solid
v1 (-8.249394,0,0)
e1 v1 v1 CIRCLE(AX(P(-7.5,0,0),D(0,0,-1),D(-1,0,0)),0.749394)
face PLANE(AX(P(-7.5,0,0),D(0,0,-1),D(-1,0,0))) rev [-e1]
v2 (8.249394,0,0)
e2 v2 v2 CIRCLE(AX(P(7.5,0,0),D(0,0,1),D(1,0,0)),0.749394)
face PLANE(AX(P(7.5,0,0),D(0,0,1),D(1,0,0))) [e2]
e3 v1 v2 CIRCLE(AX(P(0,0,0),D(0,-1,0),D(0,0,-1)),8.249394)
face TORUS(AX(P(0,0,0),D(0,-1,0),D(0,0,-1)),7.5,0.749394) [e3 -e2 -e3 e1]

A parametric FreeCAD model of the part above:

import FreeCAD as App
import Part
import Sketcher

doc = App.newDocument("Part")
params = doc.addObject("Spreadsheet::Sheet", "Params")
for row, (alias, value) in enumerate([
    ("revolution_angle", "180 deg"),
], start=1):
    params.set(f"A{row}", alias)
    params.set(f"B{row}", "=" + value)
    params.setAlias(f"B{row}", alias)

body = doc.addObject("PartDesign::Body", "Body")

# Sketch on XY plane
sketch1 = body.newObject("Sketcher::SketchObject", "Sketch")
sketch1.AttachmentSupport = (doc.getObject("XY_Plane"), [""])
sketch1.MapMode = "FlatFace"
sketch1.addGeometry(Part.Circle(App.Vector(7.5, 0, 0), App.Vector(0, 0, 1), 0.749394), False)
sketch1.addConstraint([
    Sketcher.Constraint("PointOnObject", 0, 3, -1),
    Sketcher.Constraint("DistanceX", -1, 1, 0, 3, 7.5),
    Sketcher.Constraint("Diameter", 0, 1.498789),
])
revolution = body.newObject("PartDesign::Revolution", "Revolution")
revolution.Profile = sketch1
revolution.ReferenceAxis = (sketch1, ["V_Axis"])
revolution.setExpression("Angle", "Params.revolution_angle")

doc.recompute()
